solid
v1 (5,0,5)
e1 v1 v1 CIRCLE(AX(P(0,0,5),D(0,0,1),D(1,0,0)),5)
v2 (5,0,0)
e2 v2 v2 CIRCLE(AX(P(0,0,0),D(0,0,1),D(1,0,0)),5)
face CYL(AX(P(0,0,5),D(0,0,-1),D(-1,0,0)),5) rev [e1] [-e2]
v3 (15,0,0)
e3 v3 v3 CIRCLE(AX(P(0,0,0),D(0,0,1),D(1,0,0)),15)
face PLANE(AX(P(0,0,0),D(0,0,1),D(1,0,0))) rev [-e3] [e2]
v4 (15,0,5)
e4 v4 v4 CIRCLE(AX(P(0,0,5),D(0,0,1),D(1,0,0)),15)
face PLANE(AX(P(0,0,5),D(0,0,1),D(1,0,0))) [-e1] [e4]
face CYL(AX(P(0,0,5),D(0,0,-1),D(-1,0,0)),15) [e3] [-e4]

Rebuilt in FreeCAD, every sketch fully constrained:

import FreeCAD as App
import Part
import Sketcher

V = App.Vector
Q = App.Units.Quantity

doc = App.newDocument("Part")
body = doc.addObject("PartDesign::Body", "Body")

sketch1 = doc.addObject("Sketcher::SketchObject", "Sketch")
body.addObject(sketch1)
sketch1.AttachmentSupport = (doc.XY_Plane, [""])
sketch1.MapMode = "FlatFace"
sketch1.addGeometry(Part.Circle(V(0, 0, 0), V(0, 0, 1), 15), False)
sketch1.addGeometry(Part.Circle(V(0, 0, 0), V(0, 0, 1), 5), False)
sketch1.addConstraint(Sketcher.Constraint("Coincident", 0, 3, -1, 1))
sketch1.addConstraint(Sketcher.Constraint("Coincident", 1, 3, -1, 1))
sketch1.addConstraint(Sketcher.Constraint("Diameter", 0, Q("30 mm")))
sketch1.addConstraint(Sketcher.Constraint("Diameter", 1, Q("10 mm")))
pad1 = doc.addObject("PartDesign::Pad", "Pad")
body.addObject(pad1)
pad1.Profile = sketch1
pad1.Length = 5

doc.recompute()
